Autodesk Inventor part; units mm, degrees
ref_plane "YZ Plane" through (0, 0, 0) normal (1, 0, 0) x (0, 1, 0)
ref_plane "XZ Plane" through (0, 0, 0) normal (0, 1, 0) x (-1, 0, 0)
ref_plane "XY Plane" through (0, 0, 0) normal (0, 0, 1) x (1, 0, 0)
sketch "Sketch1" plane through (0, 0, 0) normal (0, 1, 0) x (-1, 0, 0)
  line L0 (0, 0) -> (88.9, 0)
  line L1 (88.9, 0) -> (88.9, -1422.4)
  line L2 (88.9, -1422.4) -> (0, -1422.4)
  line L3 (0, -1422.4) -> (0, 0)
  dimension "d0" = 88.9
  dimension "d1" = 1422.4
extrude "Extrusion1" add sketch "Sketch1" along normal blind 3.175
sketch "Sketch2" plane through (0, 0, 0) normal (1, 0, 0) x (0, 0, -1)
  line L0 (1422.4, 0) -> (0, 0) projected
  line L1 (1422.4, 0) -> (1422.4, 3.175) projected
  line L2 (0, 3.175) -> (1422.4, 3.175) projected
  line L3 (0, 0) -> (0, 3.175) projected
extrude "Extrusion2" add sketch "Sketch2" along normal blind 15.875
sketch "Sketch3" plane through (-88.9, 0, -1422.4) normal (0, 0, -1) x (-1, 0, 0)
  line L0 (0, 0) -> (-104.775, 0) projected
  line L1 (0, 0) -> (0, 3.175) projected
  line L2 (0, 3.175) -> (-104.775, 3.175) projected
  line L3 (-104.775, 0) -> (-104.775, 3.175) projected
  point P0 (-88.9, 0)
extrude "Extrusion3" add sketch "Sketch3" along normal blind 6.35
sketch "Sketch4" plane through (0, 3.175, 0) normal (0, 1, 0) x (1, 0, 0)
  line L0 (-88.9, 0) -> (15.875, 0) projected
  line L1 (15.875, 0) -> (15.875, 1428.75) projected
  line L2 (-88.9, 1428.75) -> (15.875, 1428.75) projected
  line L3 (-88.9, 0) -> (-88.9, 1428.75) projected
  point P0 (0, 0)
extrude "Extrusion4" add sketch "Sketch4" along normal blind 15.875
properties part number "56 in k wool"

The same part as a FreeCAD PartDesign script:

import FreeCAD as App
import Part
import Sketcher

V = App.Vector
Q = App.Units.Quantity

doc = App.newDocument("Part")
body = doc.addObject("PartDesign::Body", "Body")

# Sketch on XZ plane
sketch1 = body.newObject("Sketcher::SketchObject", "Sketch")
sketch1.AttachmentSupport = (doc.getObject("XZ_Plane"), [""])
sketch1.MapMode = "FlatFace"
sketch1.addGeometry(Part.LineSegment(V(-89, 0, 0), V(0, 0, 0)), False)
sketch1.addGeometry(Part.LineSegment(V(0, 0, 0), V(0, -1422, 0)), False)
sketch1.addGeometry(Part.LineSegment(V(0, -1422, 0), V(-89, -1422, 0)), False)
sketch1.addGeometry(Part.LineSegment(V(-89, -1422, 0), V(-89, 0, 0)), False)
sketch1.addConstraint(Sketcher.Constraint("Coincident", 0, 2, 1, 1))
sketch1.addConstraint(Sketcher.Constraint("Coincident", 1, 2, 2, 1))
sketch1.addConstraint(Sketcher.Constraint("Coincident", 2, 2, 3, 1))
sketch1.addConstraint(Sketcher.Constraint("Coincident", 3, 2, 0, 1))
sketch1.addConstraint(Sketcher.Constraint("Horizontal", 0))
sketch1.addConstraint(Sketcher.Constraint("Vertical", 1))
sketch1.addConstraint(Sketcher.Constraint("Horizontal", 2))
sketch1.addConstraint(Sketcher.Constraint("Vertical", 3))
sketch1.addConstraint(Sketcher.Constraint("Coincident", 0, 2, -1, 1))
sketch1.addConstraint(Sketcher.Constraint("DistanceY", 1, 2, 1, 1, Q("56 in")))
sketch1.addConstraint(Sketcher.Constraint("DistanceX", 0, 1, 0, 2, Q("3.5 in")))
pad1 = body.newObject("PartDesign::Pad", "Pad")
pad1.Profile = sketch1
pad1.Length = Q("0.125 in")
pad1.Reversed = True

# Sketch on YZ plane
sketch2 = body.newObject("Sketcher::SketchObject", "Sketch001")
sketch2.AttachmentSupport = (doc.getObject("YZ_Plane"), [""])
sketch2.MapMode = "FlatFace"
sketch2.addGeometry(Part.LineSegment(V(0, 0, 0), V(0, -1422.4, 0)), False)
sketch2.addGeometry(Part.LineSegment(V(0, -1422.4, 0), V(3.2, -1422.4, 0)), False)
sketch2.addGeometry(Part.LineSegment(V(3.2, -1422.4, 0), V(3.2, 0, 0)), False)
sketch2.addGeometry(Part.LineSegment(V(3.2, 0, 0), V(0, 0, 0)), False)
sketch2.addConstraint(Sketcher.Constraint("Coincident", 0, 2, 1, 1))
sketch2.addConstraint(Sketcher.Constraint("Coincident", 1, 2, 2, 1))
sketch2.addConstraint(Sketcher.Constraint("Coincident", 2, 2, 3, 1))
sketch2.addConstraint(Sketcher.Constraint("Coincident", 3, 2, 0, 1))
sketch2.addConstraint(Sketcher.Constraint("Vertical", 0))
sketch2.addConstraint(Sketcher.Constraint("Horizontal", 1))
sketch2.addConstraint(Sketcher.Constraint("Vertical", 2))
sketch2.addConstraint(Sketcher.Constraint("Horizontal", 3))
sketch2.addConstraint(Sketcher.Constraint("Coincident", 3, 2, -1, 1))
sketch2.addConstraint(Sketcher.Constraint("DistanceY", 0, 2, 0, 1, Q("56 in")))
sketch2.addConstraint(Sketcher.Constraint("DistanceX", 1, 1, 1, 2, Q("0.125 in")))
pad2 = body.newObject("PartDesign::Pad", "Pad001")
pad2.Profile = sketch2
pad2.Length = Q("0.625 in")

# Sketch on XY plane
sketch3 = body.newObject("Sketcher::SketchObject", "Sketch002")
sketch3.AttachmentSupport = (doc.getObject("XY_Plane"), [""])
sketch3.MapMode = "FlatFace"
sketch3.AttachmentOffset = App.Placement(V(0, 0, -56 * 25.4), App.Rotation())
sketch3.addGeometry(Part.LineSegment(V(15.9, 0, 0), V(-88.9, 0, 0)), False)
sketch3.addGeometry(Part.LineSegment(V(-88.9, 0, 0), V(-88.9, 3.2, 0)), False)
sketch3.addGeometry(Part.LineSegment(V(-88.9, 3.2, 0), V(15.9, 3.2, 0)), False)
sketch3.addGeometry(Part.LineSegment(V(15.9, 3.2, 0), V(15.9, 0, 0)), False)
sketch3.addConstraint(Sketcher.Constraint("Coincident", 0, 2, 1, 1))
sketch3.addConstraint(Sketcher.Constraint("Coincident", 1, 2, 2, 1))
sketch3.addConstraint(Sketcher.Constraint("Coincident", 2, 2, 3, 1))
sketch3.addConstraint(Sketcher.Constraint("Coincident", 3, 2, 0, 1))
sketch3.addConstraint(Sketcher.Constraint("Horizontal", 0))
sketch3.addConstraint(Sketcher.Constraint("Vertical", 1))
sketch3.addConstraint(Sketcher.Constraint("Horizontal", 2))
sketch3.addConstraint(Sketcher.Constraint("Vertical", 3))
sketch3.addConstraint(Sketcher.Constraint("PointOnObject", 0, 2, -1))
sketch3.addConstraint(Sketcher.Constraint("DistanceX", 0, 2, -1, 1, Q("3.5 in")))
sketch3.addConstraint(Sketcher.Constraint("DistanceX", 0, 2, 0, 1, Q("4.125 in")))
sketch3.addConstraint(Sketcher.Constraint("DistanceY", 1, 1, 1, 2, Q("0.125 in")))
pad3 = body.newObject("PartDesign::Pad", "Pad002")
pad3.Profile = sketch3
pad3.Length = Q("0.25 in")
pad3.Reversed = True

# Sketch on XZ plane
sketch4 = body.newObject("Sketcher::SketchObject", "Sketch003")
sketch4.AttachmentSupport = (doc.getObject("XZ_Plane"), [""])
sketch4.MapMode = "FlatFace"
sketch4.AttachmentOffset = App.Placement(V(0, 0, -0.125 * 25.4), App.Rotation())
sketch4.addGeometry(Part.LineSegment(V(-89, -1429, 0), V(-89, 0, 0)), False)
sketch4.addGeometry(Part.LineSegment(V(-89, 0, 0), V(16, 0, 0)), False)
sketch4.addGeometry(Part.LineSegment(V(16, 0, 0), V(16, -1429, 0)), False)
sketch4.addGeometry(Part.LineSegment(V(16, -1429, 0), V(-89, -1429, 0)), False)
sketch4.addConstraint(Sketcher.Constraint("Coincident", 0, 2, 1, 1))
sketch4.addConstraint(Sketcher.Constraint("Coincident", 1, 2, 2, 1))
sketch4.addConstraint(Sketcher.Constraint("Coincident", 2, 2, 3, 1))
sketch4.addConstraint(Sketcher.Constraint("Coincident", 3, 2, 0, 1))
sketch4.addConstraint(Sketcher.Constraint("Vertical", 0))
sketch4.addConstraint(Sketcher.Constraint("Horizontal", 1))
sketch4.addConstraint(Sketcher.Constraint("Vertical", 2))
sketch4.addConstraint(Sketcher.Constraint("Horizontal", 3))
sketch4.addConstraint(Sketcher.Constraint("PointOnObject", 0, 2, -1))
sketch4.addConstraint(Sketcher.Constraint("DistanceY", 0, 1, 0, 2, Q("56.25 in")))
sketch4.addConstraint(Sketcher.Constraint("DistanceX", 0, 2, -1, 1, Q("3.5 in")))
sketch4.addConstraint(Sketcher.Constraint("DistanceX", 1, 1, 1, 2, Q("4.125 in")))
pad4 = body.newObject("PartDesign::Pad", "Pad003")
pad4.Profile = sketch4
pad4.Length = Q("0.625 in")
pad4.Reversed = True

doc.recompute()
